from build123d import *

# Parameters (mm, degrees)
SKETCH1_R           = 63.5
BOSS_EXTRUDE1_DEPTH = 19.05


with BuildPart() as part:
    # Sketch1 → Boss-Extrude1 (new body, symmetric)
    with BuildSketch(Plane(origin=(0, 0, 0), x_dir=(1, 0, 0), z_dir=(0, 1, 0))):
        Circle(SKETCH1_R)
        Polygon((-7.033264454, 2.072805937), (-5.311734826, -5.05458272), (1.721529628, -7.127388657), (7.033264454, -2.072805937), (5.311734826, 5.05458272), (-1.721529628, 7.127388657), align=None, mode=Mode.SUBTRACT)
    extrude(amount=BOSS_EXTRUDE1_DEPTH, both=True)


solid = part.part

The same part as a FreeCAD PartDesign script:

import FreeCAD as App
import Part
import Sketcher
Q = App.Units.Quantity


def add_polygon(sketch, points):
    """Adds a closed chain of lines whose ends are joined by coincident constraints."""
    first, n = sketch.GeometryCount, len(points)
    for a, b in zip(points, points[1:] + points[:1]):
        sketch.addGeometry(Part.LineSegment(App.Vector(*a, 0), App.Vector(*b, 0)), False)
    for i in range(n):
        sketch.addConstraint(Sketcher.Constraint("Coincident", first + i, 2, first + (i + 1) % n, 1))

doc = App.newDocument("Part")
params = doc.addObject("Spreadsheet::Sheet", "Params")
for row, (alias, value) in enumerate([
    ("sketch1_diameter", "5 in"),
    ("pad1_length", "1.5 in"),
], start=1):
    params.set(f"A{row}", alias)
    params.set(f"B{row}", "=" + value)
    params.setAlias(f"B{row}", alias)

body = doc.addObject("PartDesign::Body", "Body")

sketch1 = doc.addObject("Sketcher::SketchObject", "Sketch")
body.addObject(sketch1)
sketch1.AttachmentSupport = (doc.XZ_Plane, [""])
sketch1.MapMode = "FlatFace"
sketch1.addGeometry(Part.Circle(App.Vector(0, 0, 0), App.Vector(0, 0, 1), 64), False)
add_polygon(sketch1, [(-5, 5), (-7, -2), (-2, -7), (5, -5), (7, 2), (2, 7)])
sketch1.addConstraint([
    Sketcher.Constraint("Coincident", 0, 3, -1, 1),
    Sketcher.Constraint("Symmetric", 1, 2, 4, 2, -1, 1),
    Sketcher.Constraint("Symmetric", 2, 2, 5, 2, -1, 1),
    Sketcher.Constraint("Symmetric", 3, 2, 6, 2, -1, 1),
    Sketcher.Constraint("Equal", 1, 2),
    Sketcher.Constraint("Equal", 2, 3),
    Sketcher.Constraint("Diameter", 0, Q("5 in")),
    Sketcher.Constraint("DistanceX", 1, 2, -1, 1, Q("0.2769002 in")),
    Sketcher.Constraint("DistanceX", 2, 2, 3, 2, Q("0.2769002 in")),
    Sketcher.Constraint("DistanceX", 1, 2, 3, 2, Q("12.344999 mm")),
    Sketcher.Constraint("Distance", 1, Q("7.332348 mm")),
])
sketch1.setExpression("Constraints[12]", "Params.sketch1_diameter")
pad1 = doc.addObject("PartDesign::Pad", "Pad")
body.addObject(pad1)
pad1.Profile = sketch1
pad1.setExpression("Length", "Params.pad1_length")
pad1.Midplane = True

doc.recompute()
